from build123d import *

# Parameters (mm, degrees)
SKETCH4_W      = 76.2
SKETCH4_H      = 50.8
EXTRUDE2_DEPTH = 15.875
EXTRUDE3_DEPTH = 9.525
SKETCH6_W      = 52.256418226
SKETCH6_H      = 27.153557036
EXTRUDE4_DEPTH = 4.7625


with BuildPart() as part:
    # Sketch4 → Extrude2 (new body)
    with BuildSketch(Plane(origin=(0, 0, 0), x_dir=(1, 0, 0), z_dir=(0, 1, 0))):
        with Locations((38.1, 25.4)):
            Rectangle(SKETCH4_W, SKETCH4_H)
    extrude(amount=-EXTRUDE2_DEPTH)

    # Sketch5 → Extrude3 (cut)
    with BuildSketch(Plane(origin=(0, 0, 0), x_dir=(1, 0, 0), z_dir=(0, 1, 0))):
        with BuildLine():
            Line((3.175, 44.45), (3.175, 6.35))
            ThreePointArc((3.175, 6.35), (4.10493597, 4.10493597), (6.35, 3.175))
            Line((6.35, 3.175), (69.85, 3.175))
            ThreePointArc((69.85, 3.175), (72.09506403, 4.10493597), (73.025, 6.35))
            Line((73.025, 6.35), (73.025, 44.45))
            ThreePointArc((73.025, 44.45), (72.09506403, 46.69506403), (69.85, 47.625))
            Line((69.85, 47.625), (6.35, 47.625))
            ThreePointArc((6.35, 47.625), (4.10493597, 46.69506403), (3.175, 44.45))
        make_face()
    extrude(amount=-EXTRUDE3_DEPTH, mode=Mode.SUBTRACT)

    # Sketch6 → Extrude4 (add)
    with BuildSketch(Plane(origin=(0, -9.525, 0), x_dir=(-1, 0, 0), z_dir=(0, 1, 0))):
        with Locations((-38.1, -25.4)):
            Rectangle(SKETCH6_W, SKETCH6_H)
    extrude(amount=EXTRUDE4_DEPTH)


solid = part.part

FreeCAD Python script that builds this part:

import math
import FreeCAD as App
import Part
import Sketcher
from FreeCAD import Vector
Q = App.Units.Quantity


def add_polygon(sketch, points):
    """Adds a closed chain of lines whose ends are joined by coincident constraints."""
    first, n = sketch.GeometryCount, len(points)
    for a, b in zip(points, points[1:] + points[:1]):
        sketch.addGeometry(Part.LineSegment(App.Vector(*a, 0), App.Vector(*b, 0)), False)
    for i in range(n):
        sketch.addConstraint(Sketcher.Constraint("Coincident", first + i, 2, first + (i + 1) % n, 1))

doc = App.newDocument("Part")
body = doc.addObject("PartDesign::Body", "Body")

# Sketch on XZ plane
sketch1 = doc.addObject("Sketcher::SketchObject", "Sketch")
body.addObject(sketch1)
sketch1.AttachmentSupport = (doc.XZ_Plane, [""])
sketch1.MapMode = "FlatFace"
add_polygon(sketch1, [(0, -51), (0, 0), (76, 0), (76, -51)])  # lines 0-3
sketch1.addConstraint(Sketcher.Constraint("Vertical", 0))
sketch1.addConstraint(Sketcher.Constraint("Horizontal", 1))
sketch1.addConstraint(Sketcher.Constraint("Vertical", 2))
sketch1.addConstraint(Sketcher.Constraint("Horizontal", 3))
sketch1.addConstraint(Sketcher.Constraint("Coincident", 0, 2, -1, 1))
sketch1.addConstraint(Sketcher.Constraint("DistanceX", 1, 1, 1, 2, Q("3 in")))
sketch1.addConstraint(Sketcher.Constraint("DistanceY", 0, 1, 0, 2, Q("2 in")))
pad1 = doc.addObject("PartDesign::Pad", "Pad")
body.addObject(pad1)
pad1.Profile = sketch1
pad1.Length = Q("0.625 in")

# Sketch on XZ plane
sketch2 = doc.addObject("Sketcher::SketchObject", "Sketch001")
body.addObject(sketch2)
sketch2.AttachmentSupport = (doc.XZ_Plane, [""])
sketch2.MapMode = "FlatFace"
sketch2.addGeometry(Part.LineSegment(Vector(3.2, -44.5, 0), Vector(3.2, -6.3, 0)), False)
sketch2.addGeometry(Part.ArcOfCircle(Part.Circle(Vector(6.4, -6.4, 0), Vector(0, 0, 1), 3.2), math.radians(90), math.radians(180)), False)
sketch2.addGeometry(Part.LineSegment(Vector(6.3, -3.2, 0), Vector(69.8, -3.2, 0)), False)
sketch2.addGeometry(Part.ArcOfCircle(Part.Circle(Vector(69.8, -6.4, 0), Vector(0, 0, 1), 3.2), math.radians(0), math.radians(90)), False)
sketch2.addGeometry(Part.LineSegment(Vector(73, -6.3, 0), Vector(73, -44.5, 0)), False)
sketch2.addGeometry(Part.ArcOfCircle(Part.Circle(Vector(69.8, -44.4, 0), Vector(0, 0, 1), 3.2), math.radians(-90), math.radians(0)), False)
sketch2.addGeometry(Part.LineSegment(Vector(69.8, -47.6, 0), Vector(6.3, -47.6, 0)), False)
sketch2.addGeometry(Part.ArcOfCircle(Part.Circle(Vector(6.4, -44.4, 0), Vector(0, 0, 1), 3.2), math.radians(-180), math.radians(-90)), False)
sketch2.addConstraint(Sketcher.Constraint("Tangent", 0, 2, 1, 2))
sketch2.addConstraint(Sketcher.Constraint("Tangent", 1, 1, 2, 1))
sketch2.addConstraint(Sketcher.Constraint("Tangent", 2, 2, 3, 2))
sketch2.addConstraint(Sketcher.Constraint("Tangent", 3, 1, 4, 1))
sketch2.addConstraint(Sketcher.Constraint("Tangent", 4, 2, 5, 2))
sketch2.addConstraint(Sketcher.Constraint("Tangent", 5, 1, 6, 1))
sketch2.addConstraint(Sketcher.Constraint("Tangent", 6, 2, 7, 2))
sketch2.addConstraint(Sketcher.Constraint("Tangent", 7, 1, 0, 1))
sketch2.addConstraint(Sketcher.Constraint("Vertical", 0))
sketch2.addConstraint(Sketcher.Constraint("Horizontal", 2))
sketch2.addConstraint(Sketcher.Constraint("Vertical", 4))
sketch2.addConstraint(Sketcher.Constraint("Horizontal", 6))
sketch2.addConstraint(Sketcher.Constraint("Equal", 1, 3))
sketch2.addConstraint(Sketcher.Constraint("Equal", 3, 5))
sketch2.addConstraint(Sketcher.Constraint("Equal", 5, 7))
sketch2.addConstraint(Sketcher.Constraint("DistanceX", 2, 1, 2, 2, Q("2.5 in")))
sketch2.addConstraint(Sketcher.Constraint("DistanceY", 0, 1, 0, 2, Q("1.5 in")))
sketch2.addConstraint(Sketcher.Constraint("Radius", 1, Q("0.125 in")))
sketch2.addConstraint(Sketcher.Constraint("DistanceX", -1, 1, 1, 3, Q("0.25 in")))
sketch2.addConstraint(Sketcher.Constraint("DistanceY", 1, 3, -1, 1, Q("0.25 in")))
pocket1 = doc.addObject("PartDesign::Pocket", "Pocket")
body.addObject(pocket1)
pocket1.Profile = sketch2
pocket1.Length = Q("0.375 in")
pocket1.Reversed = True

# Sketch on XZ plane
sketch3 = doc.addObject("Sketcher::SketchObject", "Sketch002")
body.addObject(sketch3)
sketch3.AttachmentSupport = (doc.XZ_Plane, [""])
sketch3.MapMode = "FlatFace"
sketch3.AttachmentOffset = App.Placement(Vector(0, 0, 0.375 * 25.4), App.Rotation())
add_polygon(sketch3, [(64, -12), (64, -39), (12, -39), (12, -12)])  # lines 0-3
sketch3.addConstraint(Sketcher.Constraint("Vertical", 0))
sketch3.addConstraint(Sketcher.Constraint("Horizontal", 1))
sketch3.addConstraint(Sketcher.Constraint("Vertical", 2))
sketch3.addConstraint(Sketcher.Constraint("Horizontal", 3))
sketch3.addConstraint(Sketcher.Constraint("DistanceX", 1, 2, 1, 1, Q("52.256418 mm")))
sketch3.addConstraint(Sketcher.Constraint("DistanceY", 0, 2, 0, 1, Q("27.153557 mm")))
sketch3.addConstraint(Sketcher.Constraint("DistanceX", -1, 1, 0, 2, Q("64.228209 mm")))
sketch3.addConstraint(Sketcher.Constraint("DistanceY", 0, 2, -1, 1, Q("38.976779 mm")))
pad2 = doc.addObject("PartDesign::Pad", "Pad001")
body.addObject(pad2)
pad2.Profile = sketch3
pad2.Length = Q("0.1875 in")
pad2.Reversed = True

doc.recompute()
